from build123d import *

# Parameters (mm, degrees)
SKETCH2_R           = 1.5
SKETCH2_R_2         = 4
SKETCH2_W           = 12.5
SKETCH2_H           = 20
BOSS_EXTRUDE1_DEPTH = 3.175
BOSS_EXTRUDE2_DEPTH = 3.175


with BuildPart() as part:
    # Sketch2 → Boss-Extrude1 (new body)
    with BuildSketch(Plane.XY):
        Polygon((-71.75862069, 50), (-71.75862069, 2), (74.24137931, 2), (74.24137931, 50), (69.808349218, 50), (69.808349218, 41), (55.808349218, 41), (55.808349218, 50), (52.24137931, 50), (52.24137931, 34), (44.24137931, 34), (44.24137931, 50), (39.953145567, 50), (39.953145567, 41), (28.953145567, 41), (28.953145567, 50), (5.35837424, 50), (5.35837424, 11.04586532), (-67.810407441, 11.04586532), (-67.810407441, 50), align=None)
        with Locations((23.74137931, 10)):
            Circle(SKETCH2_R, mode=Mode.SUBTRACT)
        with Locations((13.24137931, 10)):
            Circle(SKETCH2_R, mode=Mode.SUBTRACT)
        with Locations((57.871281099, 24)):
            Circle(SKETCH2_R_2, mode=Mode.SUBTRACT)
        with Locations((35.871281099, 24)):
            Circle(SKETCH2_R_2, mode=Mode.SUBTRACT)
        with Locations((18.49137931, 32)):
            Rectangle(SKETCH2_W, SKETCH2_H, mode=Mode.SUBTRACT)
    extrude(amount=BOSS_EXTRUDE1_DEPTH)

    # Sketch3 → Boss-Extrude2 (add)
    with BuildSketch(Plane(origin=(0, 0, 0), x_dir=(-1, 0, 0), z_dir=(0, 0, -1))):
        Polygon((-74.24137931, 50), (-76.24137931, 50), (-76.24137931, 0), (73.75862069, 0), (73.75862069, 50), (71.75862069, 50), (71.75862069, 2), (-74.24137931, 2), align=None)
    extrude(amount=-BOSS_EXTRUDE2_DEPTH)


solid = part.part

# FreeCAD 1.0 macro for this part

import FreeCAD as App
import Part
import Sketcher

V = App.Vector
Q = App.Units.Quantity


def add_polygon(sketch, points):
    """Adds a closed chain of lines whose ends are joined by coincident constraints."""
    first, n = sketch.GeometryCount, len(points)
    for a, b in zip(points, points[1:] + points[:1]):
        sketch.addGeometry(Part.LineSegment(App.Vector(*a, 0), App.Vector(*b, 0)), False)
    for i in range(n):
        sketch.addConstraint(Sketcher.Constraint("Coincident", first + i, 2, first + (i + 1) % n, 1))

doc = App.newDocument("Part")
params = doc.addObject("Spreadsheet::Sheet", "Params")
for row, (alias, value) in enumerate([
    ("sketch1_diameter", "3 mm"),
    ("sketch1_diameter2", "8 mm"),
    ("sketch1_width", "146 mm"),
    ("sketch1_width2", "14 mm"),
    ("sketch1_width3", "8 mm"),
    ("pad1_length", "3.175 mm"),
    ("sketch2_width", "2 mm"),
    ("sketch2_width2", "150 mm"),
    ("sketch2_height", "50 mm"),
    ("sketch2_height2", "48 mm"),
    ("pad2_length", "3.175 mm"),
], start=1):
    params.set(f"A{row}", alias)
    params.set(f"B{row}", "=" + value)
    params.setAlias(f"B{row}", alias)

body = doc.addObject("PartDesign::Body", "Body")

# Sketch on XY plane
sketch1 = body.newObject("Sketcher::SketchObject", "Sketch")
sketch1.AttachmentSupport = (doc.getObject("XY_Plane"), [""])
sketch1.MapMode = "FlatFace"
add_polygon(sketch1, [(-71.758621, 50), (-71.758621, 2), (74.241379, 2), (74.241379, 50), (69.808349, 50), (69.808349, 41), (55.808349, 41), (55.808349, 50), (52.241379, 50), (52.241379, 34), (44.241379, 34), (44.241379, 50), (39.953146, 50), (39.953146, 41), (28.953146, 41), (28.953146, 50), (5.358374, 50), (5.358374, 11.045865), (-67.810407, 11.045865), (-67.810407, 50)])  # lines 0-19
sketch1.addGeometry(Part.Circle(V(13.241379, 10, 0), V(0, 0, 1), 1.5), False)  # 20
sketch1.addGeometry(Part.Circle(V(23.741379, 10, 0), V(0, 0, 1), 1.5), False)  # 21
sketch1.addGeometry(Part.Circle(V(35.871281, 24, 0), V(0, 0, 1), 4), False)  # 22
sketch1.addGeometry(Part.Circle(V(57.871281, 24, 0), V(0, 0, 1), 4), False)  # 23
add_polygon(sketch1, [(24.741379, 22), (12.241379, 22), (12.241379, 42), (24.741379, 42)])  # lines 24-27
sketch1.addConstraint(Sketcher.Constraint("Vertical", 0))
sketch1.addConstraint(Sketcher.Constraint("Horizontal", 1))
sketch1.addConstraint(Sketcher.Constraint("Vertical", 2))
sketch1.addConstraint(Sketcher.Constraint("Horizontal", 3))
sketch1.addConstraint(Sketcher.Constraint("Vertical", 4))
sketch1.addConstraint(Sketcher.Constraint("Horizontal", 5))
sketch1.addConstraint(Sketcher.Constraint("Vertical", 6))
sketch1.addConstraint(Sketcher.Constraint("Horizontal", 7))
sketch1.addConstraint(Sketcher.Constraint("Vertical", 8))
sketch1.addConstraint(Sketcher.Constraint("Horizontal", 9))
sketch1.addConstraint(Sketcher.Constraint("Vertical", 10))
sketch1.addConstraint(Sketcher.Constraint("Horizontal", 11))
sketch1.addConstraint(Sketcher.Constraint("Vertical", 12))
sketch1.addConstraint(Sketcher.Constraint("Horizontal", 13))
sketch1.addConstraint(Sketcher.Constraint("Vertical", 14))
sketch1.addConstraint(Sketcher.Constraint("Horizontal", 15))
sketch1.addConstraint(Sketcher.Constraint("Vertical", 16))
sketch1.addConstraint(Sketcher.Constraint("Horizontal", 17))
sketch1.addConstraint(Sketcher.Constraint("Vertical", 18))
sketch1.addConstraint(Sketcher.Constraint("Horizontal", 19))
sketch1.addConstraint(Sketcher.Constraint("Horizontal", 24))
sketch1.addConstraint(Sketcher.Constraint("Vertical", 25))
sketch1.addConstraint(Sketcher.Constraint("Horizontal", 26))
sketch1.addConstraint(Sketcher.Constraint("Vertical", 27))
sketch1.addConstraint(Sketcher.Constraint("Equal", 20, 21))
sketch1.addConstraint(Sketcher.Constraint("Equal", 22, 23))
sketch1.addConstraint(Sketcher.Constraint("Horizontal", 20, 3, 21, 3))
sketch1.addConstraint(Sketcher.Constraint("Horizontal", 22, 3, 23, 3))
sketch1.addConstraint(Sketcher.Constraint("Horizontal", 3, 2, 6, 2))
sketch1.addConstraint(Sketcher.Constraint("Horizontal", 7, 2, 10, 2))
sketch1.addConstraint(Sketcher.Constraint("Horizontal", 5, 2, 12, 2))
sketch1.addConstraint(Sketcher.Constraint("Horizontal", 11, 2, 14, 2))
sketch1.addConstraint(Sketcher.Constraint("Horizontal", 15, 2, 18, 2))
sketch1.addConstraint(Sketcher.Constraint("Diameter", 20, Q("3 mm")))
sketch1.addConstraint(Sketcher.Constraint("Diameter", 22, Q("8 mm")))
sketch1.addConstraint(Sketcher.Constraint("DistanceX", 1, 1, 1, 2, Q("146 mm")))
sketch1.addConstraint(Sketcher.Constraint("DistanceX", 5, 2, 5, 1, Q("14 mm")))
sketch1.addConstraint(Sketcher.Constraint("DistanceX", 9, 2, 9, 1, Q("8 mm")))
sketch1.addConstraint(Sketcher.Constraint("DistanceX", 13, 2, 13, 1, Q("11 mm")))
sketch1.addConstraint(Sketcher.Constraint("DistanceY", 0, 2, 0, 1, Q("48 mm")))
sketch1.addConstraint(Sketcher.Constraint("DistanceY", 4, 2, 4, 1, Q("9 mm")))
sketch1.addConstraint(Sketcher.Constraint("DistanceY", 8, 2, 8, 1, Q("16 mm")))
sketch1.addConstraint(Sketcher.Constraint("DistanceY", 25, 1, 25, 2, Q("20 mm")))
sketch1.addConstraint(Sketcher.Constraint("DistanceX", 24, 2, 24, 1, Q("12.5 mm")))
sketch1.addConstraint(Sketcher.Constraint("DistanceY", -1, 1, 20, 3, Q("10 mm")))
sketch1.addConstraint(Sketcher.Constraint("DistanceY", -1, 1, 22, 3, Q("24 mm")))
sketch1.addConstraint(Sketcher.Constraint("DistanceY", -1, 1, 0, 2, Q("2 mm")))
sketch1.addConstraint(Sketcher.Constraint("DistanceY", -1, 1, 24, 2, Q("22 mm")))
sketch1.addConstraint(Sketcher.Constraint("DistanceX", 22, 3, 23, 3, Q("22 mm")))
sketch1.addConstraint(Sketcher.Constraint("DistanceX", 0, 2, 20, 3, Q("85 mm")))
sketch1.addConstraint(Sketcher.Constraint("DistanceX", 7, 2, 2, 2, Q("22 mm")))
sketch1.addConstraint(Sketcher.Constraint("DistanceX", 24, 2, 20, 3, Q("1 mm")))
sketch1.addConstraint(Sketcher.Constraint("DistanceX", 21, 3, 27, 2, Q("1 mm")))
sketch1.addConstraint(Sketcher.Constraint("DistanceX", 3, 2, 3, 1, Q("4.43303 mm")))
sketch1.addConstraint(Sketcher.Constraint("DistanceX", 15, 2, 15, 1, Q("23.594771 mm")))
sketch1.addConstraint(Sketcher.Constraint("DistanceX", 17, 2, 17, 1, Q("73.168782 mm")))
sketch1.addConstraint(Sketcher.Constraint("DistanceX", 21, 3, 22, 3, Q("12.129902 mm")))
sketch1.addConstraint(Sketcher.Constraint("DistanceX", 11, 2, 11, 1, Q("4.288234 mm")))
sketch1.addConstraint(Sketcher.Constraint("DistanceY", 16, 2, 16, 1, Q("38.954135 mm")))
sketch1.addConstraint(Sketcher.Constraint("DistanceX", -1, 1, 20, 3, Q("13.241379 mm")))
sketch1.setExpression("Constraints[57]", "Params.sketch1_diameter")
sketch1.setExpression("Constraints[58]", "Params.sketch1_diameter2")
sketch1.setExpression("Constraints[59]", "Params.sketch1_width")
sketch1.setExpression("Constraints[60]", "Params.sketch1_width2")
sketch1.setExpression("Constraints[61]", "Params.sketch1_width3")
pad1 = body.newObject("PartDesign::Pad", "Pad")
pad1.Profile = sketch1
pad1.setExpression("Length", "Params.pad1_length")

# Sketch on XY plane
sketch2 = body.newObject("Sketcher::SketchObject", "Sketch001")
sketch2.AttachmentSupport = (doc.getObject("XY_Plane"), [""])
sketch2.MapMode = "FlatFace"
add_polygon(sketch2, [(74.241379, 50), (76.241379, 50), (76.241379, 0), (-73.758621, 0), (-73.758621, 50), (-71.758621, 50), (-71.758621, 2), (74.241379, 2)])  # lines 0-7
sketch2.addConstraint(Sketcher.Constraint("Horizontal", 0))
sketch2.addConstraint(Sketcher.Constraint("Vertical", 1))
sketch2.addConstraint(Sketcher.Constraint("Horizontal", 2))
sketch2.addConstraint(Sketcher.Constraint("Vertical", 3))
sketch2.addConstraint(Sketcher.Constraint("Horizontal", 4))
sketch2.addConstraint(Sketcher.Constraint("Vertical", 5))
sketch2.addConstraint(Sketcher.Constraint("Horizontal", 6))
sketch2.addConstraint(Sketcher.Constraint("Vertical", 7))
sketch2.addConstraint(Sketcher.Constraint("PointOnObject", 1, 2, -1))
sketch2.addConstraint(Sketcher.Constraint("Horizontal", 0, 2, 3, 2))
sketch2.addConstraint(Sketcher.Constraint("Equal", 0, 4))
sketch2.addConstraint(Sketcher.Constraint("DistanceX", 0, 1, 0, 2, Q("2 mm")))
sketch2.addConstraint(Sketcher.Constraint("DistanceX", 2, 2, 2, 1, Q("150 mm")))
sketch2.addConstraint(Sketcher.Constraint("DistanceY", 1, 2, 1, 1, Q("50 mm")))
sketch2.addConstraint(Sketcher.Constraint("DistanceY", 5, 2, 5, 1, Q("48 mm")))
sketch2.addConstraint(Sketcher.Constraint("DistanceX", -1, 1, 0, 2, Q("76.241379 mm")))
sketch2.setExpression("Constraints[19]", "Params.sketch2_width")
sketch2.setExpression("Constraints[20]", "Params.sketch2_width2")
sketch2.setExpression("Constraints[21]", "Params.sketch2_height")
sketch2.setExpression("Constraints[22]", "Params.sketch2_height2")
pad2 = body.newObject("PartDesign::Pad", "Pad001")
pad2.Profile = sketch2
pad2.setExpression("Length", "Params.pad2_length")

doc.recompute()
